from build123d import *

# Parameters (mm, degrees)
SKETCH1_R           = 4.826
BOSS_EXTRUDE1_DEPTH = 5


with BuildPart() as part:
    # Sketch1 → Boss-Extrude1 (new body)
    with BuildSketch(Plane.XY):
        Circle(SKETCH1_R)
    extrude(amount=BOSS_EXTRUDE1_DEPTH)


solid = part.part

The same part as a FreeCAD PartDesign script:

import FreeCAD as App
import Part
import Sketcher
Q = App.Units.Quantity

doc = App.newDocument("Part")
body = doc.addObject("PartDesign::Body", "Body")

# Sketch on XY plane
sketch1 = body.newObject("Sketcher::SketchObject", "Sketch")
sketch1.AttachmentSupport = (doc.getObject("XY_Plane"), [""])
sketch1.MapMode = "FlatFace"
sketch1.addGeometry(Part.Circle(App.Vector(0, 0, 0), App.Vector(0, 0, 1), 4.826), False)
sketch1.addConstraint([
    Sketcher.Constraint("Coincident", 0, 3, -1, 1),
    Sketcher.Constraint("Diameter", 0, Q("9.652 mm")),
])
pad1 = body.newObject("PartDesign::Pad", "Pad")
pad1.Profile = sketch1
pad1.Length = 5

doc.recompute()
